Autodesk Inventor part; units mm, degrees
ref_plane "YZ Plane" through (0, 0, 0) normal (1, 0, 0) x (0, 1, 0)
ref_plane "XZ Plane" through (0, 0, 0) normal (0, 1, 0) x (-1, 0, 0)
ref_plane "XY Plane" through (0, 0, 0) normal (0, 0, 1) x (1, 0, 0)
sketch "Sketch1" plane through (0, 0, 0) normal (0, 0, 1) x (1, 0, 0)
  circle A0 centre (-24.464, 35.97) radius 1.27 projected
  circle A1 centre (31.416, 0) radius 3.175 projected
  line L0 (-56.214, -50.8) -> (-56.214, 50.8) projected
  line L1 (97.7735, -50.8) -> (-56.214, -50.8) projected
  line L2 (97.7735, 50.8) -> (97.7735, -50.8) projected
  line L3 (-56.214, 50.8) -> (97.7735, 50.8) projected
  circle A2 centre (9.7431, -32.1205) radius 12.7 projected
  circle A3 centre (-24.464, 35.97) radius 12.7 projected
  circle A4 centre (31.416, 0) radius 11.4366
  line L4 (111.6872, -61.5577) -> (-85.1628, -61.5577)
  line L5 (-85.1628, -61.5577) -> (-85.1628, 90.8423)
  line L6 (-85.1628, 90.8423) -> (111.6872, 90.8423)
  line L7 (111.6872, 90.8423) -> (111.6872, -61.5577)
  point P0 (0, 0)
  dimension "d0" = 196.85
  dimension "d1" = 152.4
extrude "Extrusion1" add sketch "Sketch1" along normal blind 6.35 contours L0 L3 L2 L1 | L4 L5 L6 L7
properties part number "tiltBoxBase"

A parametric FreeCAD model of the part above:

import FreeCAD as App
import Part
import Sketcher

V = App.Vector
Q = App.Units.Quantity


def add_polygon(sketch, points):
    """Adds a closed chain of lines whose ends are joined by coincident constraints."""
    first, n = sketch.GeometryCount, len(points)
    for a, b in zip(points, points[1:] + points[:1]):
        sketch.addGeometry(Part.LineSegment(App.Vector(*a, 0), App.Vector(*b, 0)), False)
    for i in range(n):
        sketch.addConstraint(Sketcher.Constraint("Coincident", first + i, 2, first + (i + 1) % n, 1))

doc = App.newDocument("Part")
body = doc.addObject("PartDesign::Body", "Body")

# Sketch on XY plane
sketch1 = doc.addObject("Sketcher::SketchObject", "Sketch")
body.addObject(sketch1)
sketch1.AttachmentSupport = (doc.XY_Plane, [""])
sketch1.MapMode = "FlatFace"
add_polygon(sketch1, [(-85, -62), (112, -62), (112, 91), (-85, 91)])  # lines 0-3
sketch1.addGeometry(Part.Circle(V(10, -32, 0), V(0, 0, 1), 13), False)  # 4
sketch1.addGeometry(Part.Circle(V(31, 0, 0), V(0, 0, 1), 11), False)  # 5
sketch1.addGeometry(Part.Circle(V(-24, 36, 0), V(0, 0, 1), 13), False)  # 6
sketch1.addConstraint(Sketcher.Constraint("Horizontal", 0))
sketch1.addConstraint(Sketcher.Constraint("Vertical", 1))
sketch1.addConstraint(Sketcher.Constraint("Horizontal", 2))
sketch1.addConstraint(Sketcher.Constraint("Vertical", 3))
sketch1.addConstraint(Sketcher.Constraint("Equal", 4, 6))
sketch1.addConstraint(Sketcher.Constraint("PointOnObject", 5, 3, -1))
sketch1.addConstraint(Sketcher.Constraint("DistanceY", 1, 1, 1, 2, Q("6 in")))
sketch1.addConstraint(Sketcher.Constraint("Diameter", 4, Q("1 in")))
sketch1.addConstraint(Sketcher.Constraint("DistanceX", 0, 1, 0, 2, Q("7.75 in")))
sketch1.addConstraint(Sketcher.Constraint("DistanceX", 6, 3, 5, 3, Q("2.2 in")))
sketch1.addConstraint(Sketcher.Constraint("Diameter", 5, 22.8732))
sketch1.addConstraint(Sketcher.Constraint("DistanceX", -1, 1, 4, 3, 9.743))
sketch1.addConstraint(Sketcher.Constraint("DistanceY", 4, 3, -1, 1, 32.1205))
sketch1.addConstraint(Sketcher.Constraint("DistanceX", -1, 1, 5, 3, 31.416))
sketch1.addConstraint(Sketcher.Constraint("DistanceY", -1, 1, 6, 3, 35.97))
sketch1.addConstraint(Sketcher.Constraint("DistanceX", -1, 1, 0, 2, 111.6872))
sketch1.addConstraint(Sketcher.Constraint("DistanceY", 0, 2, -1, 1, 61.5577))
pad1 = doc.addObject("PartDesign::Pad", "Pad")
body.addObject(pad1)
pad1.Profile = sketch1
pad1.Length = Q("0.25 in")

doc.recompute()
